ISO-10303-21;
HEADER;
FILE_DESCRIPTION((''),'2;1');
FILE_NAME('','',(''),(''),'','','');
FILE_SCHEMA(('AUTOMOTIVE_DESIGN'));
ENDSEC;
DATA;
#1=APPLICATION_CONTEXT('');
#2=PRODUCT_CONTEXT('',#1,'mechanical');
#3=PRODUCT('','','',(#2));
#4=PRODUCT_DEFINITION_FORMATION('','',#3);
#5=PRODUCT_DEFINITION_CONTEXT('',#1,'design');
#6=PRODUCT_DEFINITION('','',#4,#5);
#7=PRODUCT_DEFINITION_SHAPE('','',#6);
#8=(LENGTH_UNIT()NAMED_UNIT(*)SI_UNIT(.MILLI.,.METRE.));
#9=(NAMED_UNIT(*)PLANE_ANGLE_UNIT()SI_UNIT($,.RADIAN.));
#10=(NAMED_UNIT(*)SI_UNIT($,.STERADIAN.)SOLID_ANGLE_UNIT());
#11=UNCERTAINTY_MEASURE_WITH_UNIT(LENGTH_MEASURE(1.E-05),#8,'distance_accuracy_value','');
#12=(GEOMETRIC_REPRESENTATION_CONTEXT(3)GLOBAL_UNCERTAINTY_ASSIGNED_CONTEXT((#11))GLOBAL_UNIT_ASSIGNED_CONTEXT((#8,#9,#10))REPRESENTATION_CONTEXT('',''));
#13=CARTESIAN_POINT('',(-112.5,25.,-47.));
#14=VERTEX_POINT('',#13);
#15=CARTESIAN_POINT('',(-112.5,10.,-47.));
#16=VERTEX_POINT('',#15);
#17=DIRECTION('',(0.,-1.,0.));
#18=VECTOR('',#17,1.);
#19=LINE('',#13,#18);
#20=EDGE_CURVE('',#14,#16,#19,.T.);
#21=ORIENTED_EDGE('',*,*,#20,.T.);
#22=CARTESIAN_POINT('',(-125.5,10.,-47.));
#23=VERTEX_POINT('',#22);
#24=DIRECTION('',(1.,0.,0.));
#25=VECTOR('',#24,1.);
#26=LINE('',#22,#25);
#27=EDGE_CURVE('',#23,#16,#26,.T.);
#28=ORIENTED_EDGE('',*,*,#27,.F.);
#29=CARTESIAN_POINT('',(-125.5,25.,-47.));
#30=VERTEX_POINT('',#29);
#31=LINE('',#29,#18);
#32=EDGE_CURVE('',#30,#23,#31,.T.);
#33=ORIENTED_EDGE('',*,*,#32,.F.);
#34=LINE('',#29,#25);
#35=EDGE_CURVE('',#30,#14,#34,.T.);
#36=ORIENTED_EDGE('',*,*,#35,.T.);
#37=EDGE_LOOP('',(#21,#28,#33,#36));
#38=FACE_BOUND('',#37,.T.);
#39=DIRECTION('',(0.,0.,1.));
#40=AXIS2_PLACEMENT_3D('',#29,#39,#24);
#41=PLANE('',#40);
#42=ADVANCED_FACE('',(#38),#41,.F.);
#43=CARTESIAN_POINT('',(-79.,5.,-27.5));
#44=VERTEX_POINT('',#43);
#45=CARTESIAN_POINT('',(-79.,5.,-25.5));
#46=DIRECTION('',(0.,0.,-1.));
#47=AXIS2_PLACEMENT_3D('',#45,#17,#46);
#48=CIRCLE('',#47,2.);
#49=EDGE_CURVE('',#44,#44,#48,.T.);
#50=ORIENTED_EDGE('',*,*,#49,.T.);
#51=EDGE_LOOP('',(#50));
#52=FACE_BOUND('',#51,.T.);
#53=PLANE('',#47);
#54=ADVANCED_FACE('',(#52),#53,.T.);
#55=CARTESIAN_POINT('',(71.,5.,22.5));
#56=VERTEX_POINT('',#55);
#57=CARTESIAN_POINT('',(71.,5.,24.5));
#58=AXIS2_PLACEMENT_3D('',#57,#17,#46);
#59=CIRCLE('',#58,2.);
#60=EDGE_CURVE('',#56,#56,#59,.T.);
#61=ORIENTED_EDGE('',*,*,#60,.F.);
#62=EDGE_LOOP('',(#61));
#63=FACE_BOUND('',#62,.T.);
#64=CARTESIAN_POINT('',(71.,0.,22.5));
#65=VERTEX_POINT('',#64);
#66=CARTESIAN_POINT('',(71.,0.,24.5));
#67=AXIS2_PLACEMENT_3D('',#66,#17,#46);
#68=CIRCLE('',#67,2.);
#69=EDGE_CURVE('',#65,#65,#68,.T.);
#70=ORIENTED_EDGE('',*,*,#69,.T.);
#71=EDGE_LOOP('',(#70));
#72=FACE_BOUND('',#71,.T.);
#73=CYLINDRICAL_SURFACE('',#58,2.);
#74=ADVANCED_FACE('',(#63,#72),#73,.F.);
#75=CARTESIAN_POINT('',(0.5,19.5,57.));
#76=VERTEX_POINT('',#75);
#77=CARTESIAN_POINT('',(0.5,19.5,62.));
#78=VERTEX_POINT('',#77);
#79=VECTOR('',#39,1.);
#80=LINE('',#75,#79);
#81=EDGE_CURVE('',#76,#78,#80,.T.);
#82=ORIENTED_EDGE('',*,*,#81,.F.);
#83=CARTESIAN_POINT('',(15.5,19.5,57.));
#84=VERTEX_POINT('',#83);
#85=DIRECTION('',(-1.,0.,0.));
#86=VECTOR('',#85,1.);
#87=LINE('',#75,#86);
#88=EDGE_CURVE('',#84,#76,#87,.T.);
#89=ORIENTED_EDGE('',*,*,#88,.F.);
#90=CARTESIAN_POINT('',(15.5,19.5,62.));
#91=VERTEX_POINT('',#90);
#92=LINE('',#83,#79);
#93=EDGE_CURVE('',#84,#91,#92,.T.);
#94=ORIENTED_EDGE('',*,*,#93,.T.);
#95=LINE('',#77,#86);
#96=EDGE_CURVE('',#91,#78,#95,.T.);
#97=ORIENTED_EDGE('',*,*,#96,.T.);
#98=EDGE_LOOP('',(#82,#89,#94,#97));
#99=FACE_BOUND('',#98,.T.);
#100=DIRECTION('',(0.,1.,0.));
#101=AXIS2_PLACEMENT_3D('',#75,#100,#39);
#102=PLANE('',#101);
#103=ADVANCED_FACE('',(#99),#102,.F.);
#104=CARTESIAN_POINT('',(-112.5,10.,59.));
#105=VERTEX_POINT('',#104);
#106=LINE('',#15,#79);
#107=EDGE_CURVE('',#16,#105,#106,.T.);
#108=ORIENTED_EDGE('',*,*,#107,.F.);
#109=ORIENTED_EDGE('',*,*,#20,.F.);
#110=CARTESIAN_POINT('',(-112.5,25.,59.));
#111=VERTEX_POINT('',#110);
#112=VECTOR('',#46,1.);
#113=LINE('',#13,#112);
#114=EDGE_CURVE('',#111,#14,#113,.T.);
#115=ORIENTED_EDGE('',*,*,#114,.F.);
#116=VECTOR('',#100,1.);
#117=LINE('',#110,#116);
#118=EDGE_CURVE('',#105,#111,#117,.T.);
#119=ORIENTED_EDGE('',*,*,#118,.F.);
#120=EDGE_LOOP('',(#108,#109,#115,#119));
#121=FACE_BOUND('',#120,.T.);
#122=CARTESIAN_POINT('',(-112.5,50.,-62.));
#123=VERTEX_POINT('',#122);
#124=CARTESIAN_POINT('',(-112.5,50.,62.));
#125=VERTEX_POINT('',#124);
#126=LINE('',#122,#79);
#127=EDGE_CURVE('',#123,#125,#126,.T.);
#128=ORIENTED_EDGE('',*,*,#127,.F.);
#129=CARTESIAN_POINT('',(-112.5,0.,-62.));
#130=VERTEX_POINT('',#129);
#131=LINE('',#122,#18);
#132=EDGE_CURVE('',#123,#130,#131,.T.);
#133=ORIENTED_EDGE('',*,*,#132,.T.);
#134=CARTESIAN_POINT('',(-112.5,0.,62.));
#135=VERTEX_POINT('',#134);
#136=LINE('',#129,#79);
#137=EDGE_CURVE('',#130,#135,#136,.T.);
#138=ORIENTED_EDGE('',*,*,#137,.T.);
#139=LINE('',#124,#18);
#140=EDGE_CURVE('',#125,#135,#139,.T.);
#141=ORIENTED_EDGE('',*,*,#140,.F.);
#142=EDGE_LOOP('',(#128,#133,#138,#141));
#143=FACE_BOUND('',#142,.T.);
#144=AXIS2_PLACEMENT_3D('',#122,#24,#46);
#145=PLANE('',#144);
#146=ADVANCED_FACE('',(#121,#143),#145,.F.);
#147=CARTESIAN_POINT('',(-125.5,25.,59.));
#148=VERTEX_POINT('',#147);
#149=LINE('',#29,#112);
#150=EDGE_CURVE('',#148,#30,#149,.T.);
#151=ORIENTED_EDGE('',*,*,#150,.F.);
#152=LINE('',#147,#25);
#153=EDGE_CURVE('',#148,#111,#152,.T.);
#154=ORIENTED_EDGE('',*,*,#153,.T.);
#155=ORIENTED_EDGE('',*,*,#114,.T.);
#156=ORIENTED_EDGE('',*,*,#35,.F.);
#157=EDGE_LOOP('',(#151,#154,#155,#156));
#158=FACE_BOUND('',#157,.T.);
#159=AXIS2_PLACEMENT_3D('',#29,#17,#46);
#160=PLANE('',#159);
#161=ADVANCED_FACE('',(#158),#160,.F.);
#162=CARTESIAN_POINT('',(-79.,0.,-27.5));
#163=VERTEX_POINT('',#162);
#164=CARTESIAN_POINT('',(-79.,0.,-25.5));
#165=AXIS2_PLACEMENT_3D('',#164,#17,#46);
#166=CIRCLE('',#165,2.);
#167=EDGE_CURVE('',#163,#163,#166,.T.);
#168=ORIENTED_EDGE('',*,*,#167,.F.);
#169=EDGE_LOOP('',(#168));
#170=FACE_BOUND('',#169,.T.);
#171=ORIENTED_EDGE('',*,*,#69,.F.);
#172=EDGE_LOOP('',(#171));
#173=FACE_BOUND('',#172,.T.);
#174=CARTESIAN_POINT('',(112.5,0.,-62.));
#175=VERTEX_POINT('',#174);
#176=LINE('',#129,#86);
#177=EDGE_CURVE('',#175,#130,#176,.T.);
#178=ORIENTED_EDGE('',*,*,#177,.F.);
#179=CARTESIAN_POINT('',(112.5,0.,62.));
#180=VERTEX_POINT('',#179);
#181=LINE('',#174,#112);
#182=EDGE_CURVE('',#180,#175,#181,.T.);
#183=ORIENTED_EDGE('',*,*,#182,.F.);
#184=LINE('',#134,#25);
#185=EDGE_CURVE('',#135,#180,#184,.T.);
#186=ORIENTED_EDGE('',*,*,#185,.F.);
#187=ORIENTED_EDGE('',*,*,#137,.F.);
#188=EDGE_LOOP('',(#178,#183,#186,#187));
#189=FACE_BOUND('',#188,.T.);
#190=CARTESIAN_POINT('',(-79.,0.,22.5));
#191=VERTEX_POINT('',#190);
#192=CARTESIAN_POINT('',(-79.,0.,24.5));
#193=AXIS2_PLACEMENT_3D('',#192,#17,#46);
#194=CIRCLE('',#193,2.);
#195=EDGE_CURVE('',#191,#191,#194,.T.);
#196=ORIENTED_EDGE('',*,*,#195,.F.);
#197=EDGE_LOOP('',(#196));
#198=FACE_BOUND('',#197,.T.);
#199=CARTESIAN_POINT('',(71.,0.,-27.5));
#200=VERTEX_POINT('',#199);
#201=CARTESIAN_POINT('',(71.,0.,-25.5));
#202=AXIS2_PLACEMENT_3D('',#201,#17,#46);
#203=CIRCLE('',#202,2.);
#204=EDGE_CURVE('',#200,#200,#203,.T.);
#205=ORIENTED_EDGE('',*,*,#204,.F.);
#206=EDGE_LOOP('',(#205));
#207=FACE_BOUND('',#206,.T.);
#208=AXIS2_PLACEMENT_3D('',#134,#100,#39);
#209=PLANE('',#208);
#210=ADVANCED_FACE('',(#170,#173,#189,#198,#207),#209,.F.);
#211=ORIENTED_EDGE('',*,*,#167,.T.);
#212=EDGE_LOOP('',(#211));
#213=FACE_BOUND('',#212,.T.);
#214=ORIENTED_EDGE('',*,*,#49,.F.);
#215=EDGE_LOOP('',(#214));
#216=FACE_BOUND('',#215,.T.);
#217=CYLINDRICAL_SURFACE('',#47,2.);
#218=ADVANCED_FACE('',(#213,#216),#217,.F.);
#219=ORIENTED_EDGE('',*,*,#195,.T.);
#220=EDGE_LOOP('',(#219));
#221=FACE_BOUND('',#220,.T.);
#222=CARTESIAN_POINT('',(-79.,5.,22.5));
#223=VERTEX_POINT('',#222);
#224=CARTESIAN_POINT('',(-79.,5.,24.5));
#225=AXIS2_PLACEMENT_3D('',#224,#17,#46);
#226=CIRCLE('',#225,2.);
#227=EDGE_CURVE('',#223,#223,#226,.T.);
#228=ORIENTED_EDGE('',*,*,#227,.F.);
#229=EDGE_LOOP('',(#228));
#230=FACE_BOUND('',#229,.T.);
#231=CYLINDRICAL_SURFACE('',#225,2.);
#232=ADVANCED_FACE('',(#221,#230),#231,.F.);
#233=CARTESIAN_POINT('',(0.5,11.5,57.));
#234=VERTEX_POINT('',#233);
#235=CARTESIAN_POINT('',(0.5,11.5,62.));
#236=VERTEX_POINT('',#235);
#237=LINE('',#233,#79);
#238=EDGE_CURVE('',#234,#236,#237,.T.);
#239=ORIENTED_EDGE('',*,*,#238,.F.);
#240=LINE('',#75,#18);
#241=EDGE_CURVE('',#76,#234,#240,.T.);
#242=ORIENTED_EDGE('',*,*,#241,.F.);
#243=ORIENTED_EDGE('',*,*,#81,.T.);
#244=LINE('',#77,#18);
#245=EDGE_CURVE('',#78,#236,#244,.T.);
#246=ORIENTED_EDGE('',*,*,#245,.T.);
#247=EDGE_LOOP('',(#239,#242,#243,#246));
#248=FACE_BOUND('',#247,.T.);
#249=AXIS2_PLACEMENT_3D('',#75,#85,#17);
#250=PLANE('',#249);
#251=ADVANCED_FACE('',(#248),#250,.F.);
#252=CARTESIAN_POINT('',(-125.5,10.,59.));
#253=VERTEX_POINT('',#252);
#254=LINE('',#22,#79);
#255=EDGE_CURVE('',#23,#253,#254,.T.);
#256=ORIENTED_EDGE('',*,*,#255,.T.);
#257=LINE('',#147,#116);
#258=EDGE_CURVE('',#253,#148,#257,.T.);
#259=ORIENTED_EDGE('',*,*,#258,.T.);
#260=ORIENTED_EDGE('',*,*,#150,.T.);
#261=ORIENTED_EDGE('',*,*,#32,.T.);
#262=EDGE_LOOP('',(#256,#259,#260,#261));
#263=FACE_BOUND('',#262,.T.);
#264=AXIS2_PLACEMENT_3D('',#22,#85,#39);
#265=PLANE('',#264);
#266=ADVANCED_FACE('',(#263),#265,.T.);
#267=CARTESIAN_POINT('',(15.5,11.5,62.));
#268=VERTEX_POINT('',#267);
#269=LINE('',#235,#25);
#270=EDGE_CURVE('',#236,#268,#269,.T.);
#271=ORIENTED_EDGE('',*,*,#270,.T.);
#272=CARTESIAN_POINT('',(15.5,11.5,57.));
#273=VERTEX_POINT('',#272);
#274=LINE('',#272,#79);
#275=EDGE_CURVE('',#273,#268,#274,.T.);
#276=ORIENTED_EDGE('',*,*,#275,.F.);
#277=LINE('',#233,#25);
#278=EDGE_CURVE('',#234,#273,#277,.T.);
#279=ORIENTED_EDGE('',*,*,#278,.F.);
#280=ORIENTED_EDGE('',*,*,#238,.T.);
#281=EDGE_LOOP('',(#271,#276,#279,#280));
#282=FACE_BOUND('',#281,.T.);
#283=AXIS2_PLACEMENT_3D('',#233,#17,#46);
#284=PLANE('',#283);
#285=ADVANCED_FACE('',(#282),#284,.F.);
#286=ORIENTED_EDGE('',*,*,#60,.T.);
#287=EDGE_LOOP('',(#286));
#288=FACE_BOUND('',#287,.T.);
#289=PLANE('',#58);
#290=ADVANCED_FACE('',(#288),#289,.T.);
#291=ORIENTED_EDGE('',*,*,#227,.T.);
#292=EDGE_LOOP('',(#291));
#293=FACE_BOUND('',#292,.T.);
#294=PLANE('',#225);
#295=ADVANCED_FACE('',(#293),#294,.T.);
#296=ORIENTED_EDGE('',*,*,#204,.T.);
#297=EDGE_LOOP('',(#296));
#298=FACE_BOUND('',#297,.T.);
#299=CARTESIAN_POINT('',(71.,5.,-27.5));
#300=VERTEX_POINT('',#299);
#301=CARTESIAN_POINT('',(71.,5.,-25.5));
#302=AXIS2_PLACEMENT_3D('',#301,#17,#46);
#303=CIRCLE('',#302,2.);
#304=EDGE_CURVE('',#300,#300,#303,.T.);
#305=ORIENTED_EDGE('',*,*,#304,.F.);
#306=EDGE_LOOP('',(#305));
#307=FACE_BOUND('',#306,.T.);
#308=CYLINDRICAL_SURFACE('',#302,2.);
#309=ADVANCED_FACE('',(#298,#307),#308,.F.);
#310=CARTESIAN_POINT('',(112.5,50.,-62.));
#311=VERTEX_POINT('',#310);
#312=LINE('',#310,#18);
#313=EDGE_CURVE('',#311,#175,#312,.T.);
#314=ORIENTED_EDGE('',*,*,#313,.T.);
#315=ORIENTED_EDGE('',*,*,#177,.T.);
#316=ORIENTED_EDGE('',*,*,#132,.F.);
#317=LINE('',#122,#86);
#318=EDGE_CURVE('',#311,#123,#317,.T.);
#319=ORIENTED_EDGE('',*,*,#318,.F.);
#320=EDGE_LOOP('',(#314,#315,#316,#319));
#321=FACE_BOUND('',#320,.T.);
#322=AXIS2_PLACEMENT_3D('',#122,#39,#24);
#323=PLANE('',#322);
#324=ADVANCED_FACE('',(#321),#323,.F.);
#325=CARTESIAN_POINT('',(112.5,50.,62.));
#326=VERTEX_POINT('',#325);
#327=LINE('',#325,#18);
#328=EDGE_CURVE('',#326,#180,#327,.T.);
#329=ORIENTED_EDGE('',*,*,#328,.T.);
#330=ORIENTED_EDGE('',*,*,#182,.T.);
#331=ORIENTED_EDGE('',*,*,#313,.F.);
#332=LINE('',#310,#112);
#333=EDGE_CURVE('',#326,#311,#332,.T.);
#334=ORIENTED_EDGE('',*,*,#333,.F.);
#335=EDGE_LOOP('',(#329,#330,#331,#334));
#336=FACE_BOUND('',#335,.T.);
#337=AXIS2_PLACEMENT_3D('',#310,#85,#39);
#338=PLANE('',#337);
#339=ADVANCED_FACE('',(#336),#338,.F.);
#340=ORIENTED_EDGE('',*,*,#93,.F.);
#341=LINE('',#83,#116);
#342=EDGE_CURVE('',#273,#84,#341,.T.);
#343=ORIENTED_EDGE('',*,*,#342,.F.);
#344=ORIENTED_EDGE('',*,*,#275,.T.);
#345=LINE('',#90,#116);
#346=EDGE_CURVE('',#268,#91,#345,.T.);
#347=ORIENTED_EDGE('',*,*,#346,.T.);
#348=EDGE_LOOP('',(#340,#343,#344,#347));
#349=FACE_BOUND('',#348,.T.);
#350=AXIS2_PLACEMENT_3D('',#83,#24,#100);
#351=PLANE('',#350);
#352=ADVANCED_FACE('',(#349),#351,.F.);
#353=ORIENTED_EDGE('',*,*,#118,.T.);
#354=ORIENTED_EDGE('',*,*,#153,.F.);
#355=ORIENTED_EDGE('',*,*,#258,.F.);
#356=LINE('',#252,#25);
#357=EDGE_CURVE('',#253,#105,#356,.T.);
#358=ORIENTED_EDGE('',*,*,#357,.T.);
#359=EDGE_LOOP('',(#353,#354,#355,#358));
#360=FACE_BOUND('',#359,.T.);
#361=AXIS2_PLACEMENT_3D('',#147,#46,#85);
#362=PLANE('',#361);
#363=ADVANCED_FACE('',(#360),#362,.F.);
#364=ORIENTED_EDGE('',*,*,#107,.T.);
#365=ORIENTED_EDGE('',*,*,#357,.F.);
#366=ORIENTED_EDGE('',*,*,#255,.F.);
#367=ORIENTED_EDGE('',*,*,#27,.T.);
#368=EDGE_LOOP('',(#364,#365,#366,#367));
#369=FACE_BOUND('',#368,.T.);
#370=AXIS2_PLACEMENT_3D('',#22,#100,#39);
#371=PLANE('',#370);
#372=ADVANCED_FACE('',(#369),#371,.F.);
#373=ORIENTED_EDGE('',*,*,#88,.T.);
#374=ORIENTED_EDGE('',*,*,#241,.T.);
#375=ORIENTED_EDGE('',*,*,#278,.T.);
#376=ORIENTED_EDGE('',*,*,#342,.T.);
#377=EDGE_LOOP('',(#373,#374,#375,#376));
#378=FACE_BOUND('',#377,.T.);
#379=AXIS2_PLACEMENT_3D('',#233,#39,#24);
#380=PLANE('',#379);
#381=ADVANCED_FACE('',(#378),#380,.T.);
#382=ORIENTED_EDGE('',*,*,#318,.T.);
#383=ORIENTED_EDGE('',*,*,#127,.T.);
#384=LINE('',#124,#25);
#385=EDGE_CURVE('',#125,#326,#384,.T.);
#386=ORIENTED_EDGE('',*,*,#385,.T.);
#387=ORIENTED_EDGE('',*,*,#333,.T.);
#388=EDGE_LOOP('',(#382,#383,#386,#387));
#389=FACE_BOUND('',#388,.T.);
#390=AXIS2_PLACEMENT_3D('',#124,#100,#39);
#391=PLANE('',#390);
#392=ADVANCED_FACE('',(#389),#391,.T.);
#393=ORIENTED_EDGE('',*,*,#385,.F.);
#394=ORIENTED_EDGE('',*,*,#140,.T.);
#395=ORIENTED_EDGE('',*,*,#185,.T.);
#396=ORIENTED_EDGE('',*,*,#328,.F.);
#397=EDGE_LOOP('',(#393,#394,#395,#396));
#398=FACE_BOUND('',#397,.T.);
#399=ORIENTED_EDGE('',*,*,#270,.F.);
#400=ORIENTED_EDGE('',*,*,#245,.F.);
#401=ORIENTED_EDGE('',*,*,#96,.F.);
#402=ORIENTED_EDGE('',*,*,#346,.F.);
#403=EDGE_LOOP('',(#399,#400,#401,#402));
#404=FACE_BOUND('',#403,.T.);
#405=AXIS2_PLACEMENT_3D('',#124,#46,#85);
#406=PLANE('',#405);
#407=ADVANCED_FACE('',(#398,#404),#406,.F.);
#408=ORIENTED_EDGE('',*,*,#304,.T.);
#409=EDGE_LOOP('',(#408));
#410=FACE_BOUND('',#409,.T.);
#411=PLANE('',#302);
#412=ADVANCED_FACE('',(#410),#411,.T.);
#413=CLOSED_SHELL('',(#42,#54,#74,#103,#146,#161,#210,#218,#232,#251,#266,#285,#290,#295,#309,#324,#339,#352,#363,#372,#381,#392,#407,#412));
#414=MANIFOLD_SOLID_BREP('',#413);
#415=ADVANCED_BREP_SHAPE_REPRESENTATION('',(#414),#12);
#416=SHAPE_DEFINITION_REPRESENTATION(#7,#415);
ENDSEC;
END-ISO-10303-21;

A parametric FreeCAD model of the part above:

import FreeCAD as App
import Part
import Sketcher

V = App.Vector
Q = App.Units.Quantity

doc = App.newDocument("Part")
body = doc.addObject("PartDesign::Body", "Body")

# Sketch on XZ plane
sketch1 = doc.addObject("Sketcher::SketchObject", "Sketch")
body.addObject(sketch1)
sketch1.AttachmentSupport = (doc.XZ_Plane, [""])
sketch1.MapMode = "FlatFace"
sketch1.addGeometry([
    Part.LineSegment(V(-112, -62, 0), V(-112, 62, 0)),
    Part.LineSegment(V(-112, 62, 0), V(112, 62, 0)),
    Part.LineSegment(V(112, 62, 0), V(112, -62, 0)),
    Part.LineSegment(V(112, -62, 0), V(-112, -62, 0)),
], False)
sketch1.addConstraint([
    Sketcher.Constraint("Coincident", 0, 2, 1, 1),
    Sketcher.Constraint("Coincident", 1, 2, 2, 1),
    Sketcher.Constraint("Coincident", 2, 2, 3, 1),
    Sketcher.Constraint("Coincident", 3, 2, 0, 1),
    Sketcher.Constraint("Vertical", 0),
    Sketcher.Constraint("Horizontal", 1),
    Sketcher.Constraint("Vertical", 2),
    Sketcher.Constraint("Horizontal", 3),
    Sketcher.Constraint("Symmetric", 0, 2, 2, 2, -1, 1),
    Sketcher.Constraint("DistanceX", 1, 1, 1, 2, Q("225 mm")),
    Sketcher.Constraint("DistanceY", 0, 1, 0, 2, Q("124 mm")),
])
pad1 = doc.addObject("PartDesign::Pad", "Pad")
body.addObject(pad1)
pad1.Profile = sketch1
pad1.Length = 50
pad1.Reversed = True

# Sketch on XZ plane
sketch2 = doc.addObject("Sketcher::SketchObject", "Sketch001")
body.addObject(sketch2)
sketch2.AttachmentSupport = (doc.XZ_Plane, [""])
sketch2.MapMode = "FlatFace"
sketch2.addGeometry([
    Part.Circle(V(-79, -25.5, 0), V(0, 0, 1), 2),
    Part.Circle(V(-79, 24.5, 0), V(0, 0, 1), 2),
    Part.Circle(V(71, -25.5, 0), V(0, 0, 1), 2),
    Part.Circle(V(71, 24.5, 0), V(0, 0, 1), 2),
], False)
sketch2.addConstraint([
    Sketcher.Constraint("Equal", 0, 1),
    Sketcher.Constraint("Equal", 1, 2),
    Sketcher.Constraint("Equal", 2, 3),
    Sketcher.Constraint("Horizontal", 0, 3, 2, 3),
    Sketcher.Constraint("Horizontal", 1, 3, 3, 3),
    Sketcher.Constraint("Vertical", 0, 3, 1, 3),
    Sketcher.Constraint("Vertical", 2, 3, 3, 3),
    Sketcher.Constraint("Diameter", 0, Q("4 mm")),
    Sketcher.Constraint("DistanceX", 0, 3, -1, 1, Q("79 mm")),
    Sketcher.Constraint("DistanceX", -1, 1, 2, 3, Q("71 mm")),
    Sketcher.Constraint("DistanceY", 0, 3, 1, 3, Q("50 mm")),
    Sketcher.Constraint("DistanceY", 0, 3, -1, 1, Q("25.5 mm")),
])
pocket1 = doc.addObject("PartDesign::Pocket", "Pocket")
body.addObject(pocket1)
pocket1.Profile = sketch2
pocket1.Length = 5

# Sketch on XY plane
sketch3 = doc.addObject("Sketcher::SketchObject", "Sketch002")
body.addObject(sketch3)
sketch3.AttachmentSupport = (doc.XY_Plane, [""])
sketch3.MapMode = "FlatFace"
sketch3.AttachmentOffset = App.Placement(V(0, 0, 62), App.Rotation())
sketch3.addGeometry([
    Part.LineSegment(V(0, 20, 0), V(0, 12, 0)),
    Part.LineSegment(V(0, 12, 0), V(16, 12, 0)),
    Part.LineSegment(V(16, 12, 0), V(16, 20, 0)),
    Part.LineSegment(V(16, 20, 0), V(0, 20, 0)),
], False)
sketch3.addConstraint([
    Sketcher.Constraint("Coincident", 0, 2, 1, 1),
    Sketcher.Constraint("Coincident", 1, 2, 2, 1),
    Sketcher.Constraint("Coincident", 2, 2, 3, 1),
    Sketcher.Constraint("Coincident", 3, 2, 0, 1),
    Sketcher.Constraint("Vertical", 0),
    Sketcher.Constraint("Horizontal", 1),
    Sketcher.Constraint("Vertical", 2),
    Sketcher.Constraint("Horizontal", 3),
    Sketcher.Constraint("DistanceX", 1, 1, 1, 2, Q("15 mm")),
    Sketcher.Constraint("DistanceY", 0, 2, 0, 1, Q("8 mm")),
    Sketcher.Constraint("DistanceX", -1, 1, 0, 2, Q("0.5 mm")),
    Sketcher.Constraint("DistanceY", -1, 1, 0, 2, Q("11.5 mm")),
])
pocket2 = doc.addObject("PartDesign::Pocket", "Pocket001")
body.addObject(pocket2)
pocket2.Profile = sketch3
pocket2.Length = 5

# Sketch on YZ plane
sketch4 = doc.addObject("Sketcher::SketchObject", "Sketch003")
body.addObject(sketch4)
sketch4.AttachmentSupport = (doc.YZ_Plane, [""])
sketch4.MapMode = "FlatFace"
sketch4.AttachmentOffset = App.Placement(V(0, 0, -112.5), App.Rotation())
sketch4.addGeometry([
    Part.LineSegment(V(25, -47, 0), V(10, -47, 0)),
    Part.LineSegment(V(10, -47, 0), V(10, 59, 0)),
    Part.LineSegment(V(10, 59, 0), V(25, 59, 0)),
    Part.LineSegment(V(25, 59, 0), V(25, -47, 0)),
], False)
sketch4.addConstraint([
    Sketcher.Constraint("Coincident", 0, 2, 1, 1),
    Sketcher.Constraint("Coincident", 1, 2, 2, 1),
    Sketcher.Constraint("Coincident", 2, 2, 3, 1),
    Sketcher.Constraint("Coincident", 3, 2, 0, 1),
    Sketcher.Constraint("Horizontal", 0),
    Sketcher.Constraint("Vertical", 1),
    Sketcher.Constraint("Horizontal", 2),
    Sketcher.Constraint("Vertical", 3),
    Sketcher.Constraint("DistanceX", 0, 2, 0, 1, Q("15 mm")),
    Sketcher.Constraint("DistanceY", 1, 1, 1, 2, Q("106 mm")),
    Sketcher.Constraint("DistanceX", -1, 1, 0, 2, Q("10 mm")),
    Sketcher.Constraint("DistanceY", 0, 2, -1, 1, Q("47 mm")),
])
pad2 = doc.addObject("PartDesign::Pad", "Pad001")
body.addObject(pad2)
pad2.Profile = sketch4
pad2.Length = 13
pad2.Reversed = True

doc.recompute()
